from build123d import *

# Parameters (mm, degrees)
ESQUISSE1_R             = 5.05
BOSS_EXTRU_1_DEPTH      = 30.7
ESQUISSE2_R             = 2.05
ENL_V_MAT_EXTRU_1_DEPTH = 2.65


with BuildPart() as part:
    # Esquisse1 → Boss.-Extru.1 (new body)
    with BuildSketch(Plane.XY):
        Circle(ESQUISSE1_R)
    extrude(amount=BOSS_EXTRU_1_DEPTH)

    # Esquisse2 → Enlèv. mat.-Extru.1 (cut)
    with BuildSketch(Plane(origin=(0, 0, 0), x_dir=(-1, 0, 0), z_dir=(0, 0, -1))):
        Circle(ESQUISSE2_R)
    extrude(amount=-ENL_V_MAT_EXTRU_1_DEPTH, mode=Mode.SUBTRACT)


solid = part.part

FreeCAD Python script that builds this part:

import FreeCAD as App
import Part
import Sketcher

doc = App.newDocument("Part")
body = doc.addObject("PartDesign::Body", "Body")

# Sketch on XY plane
sketch1 = body.newObject("Sketcher::SketchObject", "Sketch")
sketch1.AttachmentSupport = (doc.getObject("XY_Plane"), [""])
sketch1.MapMode = "FlatFace"
sketch1.addGeometry(Part.Circle(App.Vector(0, 0, 0), App.Vector(0, 0, 1), 5), False)
sketch1.addConstraint([
    Sketcher.Constraint("Coincident", 0, 3, -1, 1),
    Sketcher.Constraint("Diameter", 0, 10.1),
])
pad1 = body.newObject("PartDesign::Pad", "Pad")
pad1.Profile = sketch1
pad1.Length = 30.7

# Sketch on XY plane
sketch2 = body.newObject("Sketcher::SketchObject", "Sketch001")
sketch2.AttachmentSupport = (doc.getObject("XY_Plane"), [""])
sketch2.MapMode = "FlatFace"
sketch2.addGeometry(Part.Circle(App.Vector(0, 0, 0), App.Vector(0, 0, 1), 2), False)
sketch2.addConstraint([
    Sketcher.Constraint("Coincident", 0, 3, -1, 1),
    Sketcher.Constraint("Diameter", 0, 4.1),
])
pocket1 = body.newObject("PartDesign::Pocket", "Pocket")
pocket1.Profile = sketch2
pocket1.Length = 2.65
pocket1.Reversed = True

doc.recompute()
